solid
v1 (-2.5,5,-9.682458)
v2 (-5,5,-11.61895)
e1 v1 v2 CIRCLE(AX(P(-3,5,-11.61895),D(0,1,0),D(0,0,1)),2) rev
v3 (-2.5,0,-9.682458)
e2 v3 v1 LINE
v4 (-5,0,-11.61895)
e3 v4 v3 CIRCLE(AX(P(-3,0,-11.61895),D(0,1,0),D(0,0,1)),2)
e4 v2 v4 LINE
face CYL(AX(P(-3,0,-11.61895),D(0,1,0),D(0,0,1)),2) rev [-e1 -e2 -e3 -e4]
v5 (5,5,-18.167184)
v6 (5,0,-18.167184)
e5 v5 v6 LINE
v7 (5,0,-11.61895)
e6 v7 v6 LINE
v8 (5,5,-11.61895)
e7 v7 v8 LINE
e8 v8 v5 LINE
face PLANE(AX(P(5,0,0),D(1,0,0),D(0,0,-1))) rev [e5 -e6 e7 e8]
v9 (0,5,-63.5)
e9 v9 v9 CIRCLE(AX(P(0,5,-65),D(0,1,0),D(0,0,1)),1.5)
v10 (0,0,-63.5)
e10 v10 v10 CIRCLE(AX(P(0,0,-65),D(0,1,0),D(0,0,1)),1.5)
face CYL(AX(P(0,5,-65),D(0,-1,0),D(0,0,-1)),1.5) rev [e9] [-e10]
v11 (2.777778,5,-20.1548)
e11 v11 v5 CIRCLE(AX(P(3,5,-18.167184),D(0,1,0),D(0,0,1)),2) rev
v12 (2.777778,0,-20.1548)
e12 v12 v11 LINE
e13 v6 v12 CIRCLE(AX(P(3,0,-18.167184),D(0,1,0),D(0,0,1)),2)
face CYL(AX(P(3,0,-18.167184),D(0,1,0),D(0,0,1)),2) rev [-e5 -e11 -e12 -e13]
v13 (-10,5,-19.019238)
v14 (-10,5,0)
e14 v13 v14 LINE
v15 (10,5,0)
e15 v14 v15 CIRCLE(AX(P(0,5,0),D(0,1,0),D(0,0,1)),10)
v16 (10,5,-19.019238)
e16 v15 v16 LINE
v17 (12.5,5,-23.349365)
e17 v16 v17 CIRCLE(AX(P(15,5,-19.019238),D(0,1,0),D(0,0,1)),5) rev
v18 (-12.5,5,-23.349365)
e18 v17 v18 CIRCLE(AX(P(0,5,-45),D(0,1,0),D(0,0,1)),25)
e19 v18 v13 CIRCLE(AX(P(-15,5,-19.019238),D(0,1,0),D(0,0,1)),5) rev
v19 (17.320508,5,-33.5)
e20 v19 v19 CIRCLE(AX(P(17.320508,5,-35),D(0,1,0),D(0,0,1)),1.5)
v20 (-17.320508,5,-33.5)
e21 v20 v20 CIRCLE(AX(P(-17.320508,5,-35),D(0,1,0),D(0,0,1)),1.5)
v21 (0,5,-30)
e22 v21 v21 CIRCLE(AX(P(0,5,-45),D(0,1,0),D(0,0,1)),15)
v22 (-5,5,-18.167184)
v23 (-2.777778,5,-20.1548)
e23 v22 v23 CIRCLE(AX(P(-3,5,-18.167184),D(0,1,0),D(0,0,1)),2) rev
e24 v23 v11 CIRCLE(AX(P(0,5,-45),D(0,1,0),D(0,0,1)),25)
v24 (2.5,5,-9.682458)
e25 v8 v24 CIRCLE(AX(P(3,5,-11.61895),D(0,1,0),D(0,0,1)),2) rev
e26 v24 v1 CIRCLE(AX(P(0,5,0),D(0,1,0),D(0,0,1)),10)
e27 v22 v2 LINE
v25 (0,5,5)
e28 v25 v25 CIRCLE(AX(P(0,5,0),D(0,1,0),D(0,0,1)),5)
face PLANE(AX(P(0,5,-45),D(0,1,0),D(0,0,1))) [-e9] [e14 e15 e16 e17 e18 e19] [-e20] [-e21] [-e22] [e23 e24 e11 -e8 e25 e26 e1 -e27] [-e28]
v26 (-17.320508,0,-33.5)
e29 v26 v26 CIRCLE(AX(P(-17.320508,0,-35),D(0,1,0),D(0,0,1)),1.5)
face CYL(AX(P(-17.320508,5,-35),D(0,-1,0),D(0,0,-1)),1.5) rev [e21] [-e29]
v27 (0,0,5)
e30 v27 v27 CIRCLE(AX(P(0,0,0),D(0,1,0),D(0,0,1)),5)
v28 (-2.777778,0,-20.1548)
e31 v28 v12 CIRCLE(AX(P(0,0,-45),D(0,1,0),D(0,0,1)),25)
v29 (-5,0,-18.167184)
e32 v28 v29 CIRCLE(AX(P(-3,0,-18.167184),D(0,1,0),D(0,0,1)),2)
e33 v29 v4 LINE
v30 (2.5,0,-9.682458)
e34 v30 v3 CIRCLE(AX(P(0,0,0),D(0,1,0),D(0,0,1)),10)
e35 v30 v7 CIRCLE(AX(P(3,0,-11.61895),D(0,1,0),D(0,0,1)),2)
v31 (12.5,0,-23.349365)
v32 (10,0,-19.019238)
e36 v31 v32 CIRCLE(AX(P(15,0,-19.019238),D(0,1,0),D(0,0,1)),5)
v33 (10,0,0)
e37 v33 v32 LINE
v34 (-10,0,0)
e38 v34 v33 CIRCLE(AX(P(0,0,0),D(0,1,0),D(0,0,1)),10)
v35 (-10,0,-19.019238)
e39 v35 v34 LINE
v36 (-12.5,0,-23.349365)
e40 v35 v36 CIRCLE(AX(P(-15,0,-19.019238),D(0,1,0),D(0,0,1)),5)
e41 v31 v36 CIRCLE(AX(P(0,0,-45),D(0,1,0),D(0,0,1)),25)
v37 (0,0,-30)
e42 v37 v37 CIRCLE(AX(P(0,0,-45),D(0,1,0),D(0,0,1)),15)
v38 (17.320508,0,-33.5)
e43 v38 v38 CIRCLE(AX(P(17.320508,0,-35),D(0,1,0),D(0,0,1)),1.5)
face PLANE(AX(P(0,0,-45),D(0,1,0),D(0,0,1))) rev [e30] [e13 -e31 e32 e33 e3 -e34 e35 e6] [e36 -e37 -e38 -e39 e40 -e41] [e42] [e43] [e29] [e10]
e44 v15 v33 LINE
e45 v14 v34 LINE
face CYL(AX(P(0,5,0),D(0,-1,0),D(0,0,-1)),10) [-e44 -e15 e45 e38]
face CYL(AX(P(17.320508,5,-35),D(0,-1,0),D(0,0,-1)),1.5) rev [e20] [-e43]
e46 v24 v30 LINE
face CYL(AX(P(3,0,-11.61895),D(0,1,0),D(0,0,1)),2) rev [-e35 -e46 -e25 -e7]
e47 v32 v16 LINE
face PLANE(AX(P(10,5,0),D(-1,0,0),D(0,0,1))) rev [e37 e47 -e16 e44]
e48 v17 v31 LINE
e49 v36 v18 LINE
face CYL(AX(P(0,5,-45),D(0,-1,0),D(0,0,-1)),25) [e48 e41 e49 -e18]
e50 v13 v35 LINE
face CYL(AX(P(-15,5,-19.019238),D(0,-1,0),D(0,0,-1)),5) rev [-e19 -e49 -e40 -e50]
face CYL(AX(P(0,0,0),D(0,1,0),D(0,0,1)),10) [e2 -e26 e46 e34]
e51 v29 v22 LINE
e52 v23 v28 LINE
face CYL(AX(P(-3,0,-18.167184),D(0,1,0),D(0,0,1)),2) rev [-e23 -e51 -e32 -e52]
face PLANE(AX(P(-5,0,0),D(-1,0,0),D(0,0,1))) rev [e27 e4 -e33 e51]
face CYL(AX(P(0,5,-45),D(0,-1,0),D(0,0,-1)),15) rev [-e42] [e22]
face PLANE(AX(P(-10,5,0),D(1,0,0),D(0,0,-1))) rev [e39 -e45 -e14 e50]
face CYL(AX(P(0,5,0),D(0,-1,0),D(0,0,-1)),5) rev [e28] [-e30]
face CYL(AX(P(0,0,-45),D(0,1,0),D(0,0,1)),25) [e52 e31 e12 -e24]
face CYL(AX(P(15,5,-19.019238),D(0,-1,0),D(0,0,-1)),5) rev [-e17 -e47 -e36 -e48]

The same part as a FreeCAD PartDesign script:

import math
import FreeCAD as App
import Part
import Sketcher


def edges_at(feature, points):
    """Names of the edges that pass closest to the given points."""
    edges = feature.Shape.Edges
    near = lambda p: min(range(len(edges)), key=lambda i: edges[i].distToShape(Part.Vertex(*p))[0])
    return sorted({f"Edge{near(p) + 1}" for p in points})

doc = App.newDocument("Part")
body = doc.addObject("PartDesign::Body", "Body")

# Sketch on XZ plane
sketch1 = body.newObject("Sketcher::SketchObject", "Sketch")
sketch1.AttachmentSupport = (doc.getObject("XZ_Plane"), [""])
sketch1.MapMode = "FlatFace"
sketch1.addGeometry(Part.LineSegment(App.Vector(-10, -22.1, 0), App.Vector(-10, 0, 0)), False)
sketch1.addGeometry(Part.ArcOfCircle(Part.Circle(App.Vector(0, 0, 0), App.Vector(0, 0, 1), 10), math.radians(0), math.radians(180)), False)
sketch1.addGeometry(Part.LineSegment(App.Vector(10, 0, 0), App.Vector(10, -22.1, 0)), False)
sketch1.addGeometry(Part.ArcOfCircle(Part.Circle(App.Vector(0, -45, 0), App.Vector(0, 0, 1), 25), math.radians(114), math.radians(426)), False)
sketch1.addGeometry(Part.Circle(App.Vector(0, 0, 0), App.Vector(0, 0, 1), 5), False)
sketch1.addGeometry(Part.Circle(App.Vector(17.3, -35, 0), App.Vector(0, 0, 1), 1.5), False)
sketch1.addGeometry(Part.Circle(App.Vector(0, -45, 0), App.Vector(0, 0, 1), 15), False)
sketch1.addGeometry(Part.Circle(App.Vector(-17.3, -35, 0), App.Vector(0, 0, 1), 1.5), False)
sketch1.addGeometry(Part.Circle(App.Vector(0, -65, 0), App.Vector(0, 0, 1), 1.5), False)
sketch1.addConstraint(Sketcher.Constraint("Tangent", 0, 2, 1, 2))
sketch1.addConstraint(Sketcher.Constraint("Tangent", 1, 1, 2, 1))
sketch1.addConstraint(Sketcher.Constraint("Coincident", 2, 2, 3, 2))
sketch1.addConstraint(Sketcher.Constraint("Coincident", 3, 1, 0, 1))
sketch1.addConstraint(Sketcher.Constraint("Vertical", 0))
sketch1.addConstraint(Sketcher.Constraint("Vertical", 2))
sketch1.addConstraint(Sketcher.Constraint("Coincident", 1, 3, -1, 1))
sketch1.addConstraint(Sketcher.Constraint("Coincident", 4, 3, -1, 1))
sketch1.addConstraint(Sketcher.Constraint("Coincident", 6, 3, 3, 3))
sketch1.addConstraint(Sketcher.Constraint("Equal", 5, 7))
sketch1.addConstraint(Sketcher.Constraint("Equal", 7, 8))
sketch1.addConstraint(Sketcher.Constraint("Symmetric", 5, 3, 7, 3, -2))
sketch1.addConstraint(Sketcher.Constraint("PointOnObject", 3, 3, -2))
sketch1.addConstraint(Sketcher.Constraint("PointOnObject", 8, 3, -2))
sketch1.addConstraint(Sketcher.Constraint("Diameter", 4, 10.0))
sketch1.addConstraint(Sketcher.Constraint("Diameter", 5, 3.0))
sketch1.addConstraint(Sketcher.Constraint("Diameter", 6, 30.0))
sketch1.addConstraint(Sketcher.Constraint("Radius", 1, 10.0))
sketch1.addConstraint(Sketcher.Constraint("Radius", 3, 25.0))
sketch1.addConstraint(Sketcher.Constraint("DistanceY", 3, 3, -1, 1, 45.0))
sketch1.addConstraint(Sketcher.Constraint("DistanceY", 5, 3, -1, 1, 35.0))
sketch1.addConstraint(Sketcher.Constraint("DistanceY", 8, 3, -1, 1, 65.0))
sketch1.addConstraint(Sketcher.Constraint("DistanceX", -1, 1, 5, 3, 17.320508))
pad1 = body.newObject("PartDesign::Pad", "Pad")
pad1.Profile = sketch1
pad1.Length = 5
pad1.Reversed = True

# Sketch on XZ plane
sketch2 = body.newObject("Sketcher::SketchObject", "Sketch001")
sketch2.AttachmentSupport = (doc.getObject("XZ_Plane"), [""])
sketch2.MapMode = "FlatFace"
sketch2.AttachmentOffset = App.Placement(App.Vector(0, 0, -5), App.Rotation())
sketch2.addGeometry(Part.ArcOfCircle(Part.Circle(App.Vector(0, -45, 0), App.Vector(0, 0, 1), 25), math.radians(78), math.radians(102)), False)
sketch2.addGeometry(Part.LineSegment(App.Vector(-5, -21, 0), App.Vector(-5, -9, 0)), False)
sketch2.addGeometry(Part.ArcOfCircle(Part.Circle(App.Vector(0, 0, 0), App.Vector(0, 0, 1), 10), math.radians(-120), math.radians(-60)), False)
sketch2.addGeometry(Part.LineSegment(App.Vector(5, -9, 0), App.Vector(5, -21, 0)), False)
sketch2.addConstraint(Sketcher.Constraint("Coincident", 0, 2, 1, 1))
sketch2.addConstraint(Sketcher.Constraint("Coincident", 1, 2, 2, 1))
sketch2.addConstraint(Sketcher.Constraint("Coincident", 2, 2, 3, 1))
sketch2.addConstraint(Sketcher.Constraint("Coincident", 3, 2, 0, 1))
sketch2.addConstraint(Sketcher.Constraint("Vertical", 1))
sketch2.addConstraint(Sketcher.Constraint("Vertical", 3))
sketch2.addConstraint(Sketcher.Constraint("Coincident", 2, 3, -1, 1))
sketch2.addConstraint(Sketcher.Constraint("Symmetric", 0, 2, 3, 2, -2))
sketch2.addConstraint(Sketcher.Constraint("Radius", 0, 25.0))
sketch2.addConstraint(Sketcher.Constraint("Radius", 2, 10.0))
sketch2.addConstraint(Sketcher.Constraint("DistanceY", 0, 3, -1, 1, 45.0))
sketch2.addConstraint(Sketcher.Constraint("DistanceX", 0, 2, -1, 1, 5.0))
pocket1 = body.newObject("PartDesign::Pocket", "Pocket")
pocket1.Profile = sketch2
pocket1.Type = "ThroughAll"
pocket1.Reversed = True
doc.recompute()

fillet = body.newObject("PartDesign::Fillet", "Fillet")
fillet.Base = (pocket1, edges_at(pocket1, [
    (5, 2.5, -8.66),
    (-5, 2.5, -8.66),
    (-5, 2.5, -20.505),
    (5, 2.5, -20.505),
]))
fillet.Radius = 2
doc.recompute()

fillet2 = body.newObject("PartDesign::Fillet", "Fillet001")
fillet2.Base = (fillet, edges_at(fillet, [(10, 2.5, -22.087), (-10, 2.5, -22.087)]))
fillet2.Radius = 5

doc.recompute()
